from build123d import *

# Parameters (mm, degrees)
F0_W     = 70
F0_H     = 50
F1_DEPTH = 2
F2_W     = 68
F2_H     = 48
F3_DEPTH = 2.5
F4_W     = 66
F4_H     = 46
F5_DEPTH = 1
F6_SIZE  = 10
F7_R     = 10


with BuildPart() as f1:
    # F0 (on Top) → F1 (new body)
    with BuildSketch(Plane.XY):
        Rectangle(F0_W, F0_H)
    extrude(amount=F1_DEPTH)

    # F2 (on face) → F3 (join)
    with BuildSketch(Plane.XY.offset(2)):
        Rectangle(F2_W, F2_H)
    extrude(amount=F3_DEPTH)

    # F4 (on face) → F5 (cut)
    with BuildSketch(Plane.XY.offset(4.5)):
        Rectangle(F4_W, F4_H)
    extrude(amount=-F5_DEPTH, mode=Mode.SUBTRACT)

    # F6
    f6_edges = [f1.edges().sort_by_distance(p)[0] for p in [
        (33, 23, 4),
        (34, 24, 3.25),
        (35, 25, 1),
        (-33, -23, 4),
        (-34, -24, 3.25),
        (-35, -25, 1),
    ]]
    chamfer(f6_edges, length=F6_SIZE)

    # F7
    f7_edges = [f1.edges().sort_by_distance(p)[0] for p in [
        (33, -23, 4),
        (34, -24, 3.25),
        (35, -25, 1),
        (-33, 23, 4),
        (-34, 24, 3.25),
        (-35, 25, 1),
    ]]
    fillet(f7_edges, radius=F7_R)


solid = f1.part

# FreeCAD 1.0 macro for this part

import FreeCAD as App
import Part
import Sketcher
from FreeCAD import Vector
Q = App.Units.Quantity


def edges_at(feature, points):
    """Names of the edges that pass closest to the given points."""
    edges = feature.Shape.Edges
    near = lambda p: min(range(len(edges)), key=lambda i: edges[i].distToShape(Part.Vertex(*p))[0])
    return sorted({f"Edge{near(p) + 1}" for p in points})

doc = App.newDocument("Part")
body = doc.addObject("PartDesign::Body", "Body")

sketch1 = body.newObject("Sketcher::SketchObject", "Sketch")
sketch1.AttachmentSupport = (doc.getObject("XY_Plane"), [""])
sketch1.MapMode = "FlatFace"
sketch1.addGeometry([
    Part.LineSegment(Vector(-35, 25, 0), Vector(-35, -25, 0)),
    Part.LineSegment(Vector(-35, -25, 0), Vector(35, -25, 0)),
    Part.LineSegment(Vector(35, -25, 0), Vector(35, 25, 0)),
    Part.LineSegment(Vector(35, 25, 0), Vector(-35, 25, 0)),
], False)
sketch1.addConstraint([
    Sketcher.Constraint("Coincident", 0, 2, 1, 1),
    Sketcher.Constraint("Coincident", 1, 2, 2, 1),
    Sketcher.Constraint("Coincident", 2, 2, 3, 1),
    Sketcher.Constraint("Coincident", 3, 2, 0, 1),
    Sketcher.Constraint("Vertical", 0),
    Sketcher.Constraint("Horizontal", 1),
    Sketcher.Constraint("Vertical", 2),
    Sketcher.Constraint("Horizontal", 3),
    Sketcher.Constraint("Symmetric", 0, 2, 2, 2, -1, 1),
    Sketcher.Constraint("DistanceX", 1, 1, 1, 2, Q("70 mm")),
    Sketcher.Constraint("DistanceY", 0, 2, 0, 1, Q("50 mm")),
])
pad1 = body.newObject("PartDesign::Pad", "Pad")
pad1.Profile = sketch1
pad1.Length = 2

sketch2 = body.newObject("Sketcher::SketchObject", "Sketch001")
sketch2.AttachmentSupport = (doc.getObject("XY_Plane"), [""])
sketch2.MapMode = "FlatFace"
sketch2.AttachmentOffset = App.Placement(Vector(0, 0, 2), App.Rotation())
sketch2.addGeometry([
    Part.LineSegment(Vector(-34, 24, 0), Vector(-34, -24, 0)),
    Part.LineSegment(Vector(-34, -24, 0), Vector(34, -24, 0)),
    Part.LineSegment(Vector(34, -24, 0), Vector(34, 24, 0)),
    Part.LineSegment(Vector(34, 24, 0), Vector(-34, 24, 0)),
], False)
sketch2.addConstraint([
    Sketcher.Constraint("Coincident", 0, 2, 1, 1),
    Sketcher.Constraint("Coincident", 1, 2, 2, 1),
    Sketcher.Constraint("Coincident", 2, 2, 3, 1),
    Sketcher.Constraint("Coincident", 3, 2, 0, 1),
    Sketcher.Constraint("Vertical", 0),
    Sketcher.Constraint("Horizontal", 1),
    Sketcher.Constraint("Vertical", 2),
    Sketcher.Constraint("Horizontal", 3),
    Sketcher.Constraint("Symmetric", 0, 2, 2, 2, -1, 1),
    Sketcher.Constraint("DistanceX", 1, 1, 1, 2, Q("68 mm")),
    Sketcher.Constraint("DistanceY", 0, 2, 0, 1, Q("48 mm")),
])
pad2 = body.newObject("PartDesign::Pad", "Pad001")
pad2.Profile = sketch2
pad2.Length = 2.5

sketch3 = body.newObject("Sketcher::SketchObject", "Sketch002")
sketch3.AttachmentSupport = (doc.getObject("XY_Plane"), [""])
sketch3.MapMode = "FlatFace"
sketch3.AttachmentOffset = App.Placement(Vector(0, 0, 4.5), App.Rotation())
sketch3.addGeometry([
    Part.LineSegment(Vector(-33, 23, 0), Vector(-33, -23, 0)),
    Part.LineSegment(Vector(-33, -23, 0), Vector(33, -23, 0)),
    Part.LineSegment(Vector(33, -23, 0), Vector(33, 23, 0)),
    Part.LineSegment(Vector(33, 23, 0), Vector(-33, 23, 0)),
], False)
sketch3.addConstraint([
    Sketcher.Constraint("Coincident", 0, 2, 1, 1),
    Sketcher.Constraint("Coincident", 1, 2, 2, 1),
    Sketcher.Constraint("Coincident", 2, 2, 3, 1),
    Sketcher.Constraint("Coincident", 3, 2, 0, 1),
    Sketcher.Constraint("Vertical", 0),
    Sketcher.Constraint("Horizontal", 1),
    Sketcher.Constraint("Vertical", 2),
    Sketcher.Constraint("Horizontal", 3),
    Sketcher.Constraint("Symmetric", 0, 2, 2, 2, -1, 1),
    Sketcher.Constraint("DistanceX", 1, 1, 1, 2, Q("66 mm")),
    Sketcher.Constraint("DistanceY", 0, 2, 0, 1, Q("46 mm")),
])
pocket1 = body.newObject("PartDesign::Pocket", "Pocket")
pocket1.Profile = sketch3
pocket1.Length = 1
doc.recompute()

chamfer = body.newObject("PartDesign::Chamfer", "Chamfer")
chamfer.Base = (pocket1, edges_at(pocket1, [
    (33, 23, 4),
    (34, 24, 3.25),
    (35, 25, 1),
    (-33, -23, 4),
    (-34, -24, 3.25),
    (-35, -25, 1),
]))
chamfer.Size = 10
doc.recompute()

fillet = body.newObject("PartDesign::Fillet", "Fillet")
fillet.Base = (chamfer, edges_at(chamfer, [
    (33, -23, 4),
    (34, -24, 3.25),
    (35, -25, 1),
    (-33, 23, 4),
    (-34, 24, 3.25),
    (-35, 25, 1),
]))
fillet.Radius = 10

doc.recompute()
